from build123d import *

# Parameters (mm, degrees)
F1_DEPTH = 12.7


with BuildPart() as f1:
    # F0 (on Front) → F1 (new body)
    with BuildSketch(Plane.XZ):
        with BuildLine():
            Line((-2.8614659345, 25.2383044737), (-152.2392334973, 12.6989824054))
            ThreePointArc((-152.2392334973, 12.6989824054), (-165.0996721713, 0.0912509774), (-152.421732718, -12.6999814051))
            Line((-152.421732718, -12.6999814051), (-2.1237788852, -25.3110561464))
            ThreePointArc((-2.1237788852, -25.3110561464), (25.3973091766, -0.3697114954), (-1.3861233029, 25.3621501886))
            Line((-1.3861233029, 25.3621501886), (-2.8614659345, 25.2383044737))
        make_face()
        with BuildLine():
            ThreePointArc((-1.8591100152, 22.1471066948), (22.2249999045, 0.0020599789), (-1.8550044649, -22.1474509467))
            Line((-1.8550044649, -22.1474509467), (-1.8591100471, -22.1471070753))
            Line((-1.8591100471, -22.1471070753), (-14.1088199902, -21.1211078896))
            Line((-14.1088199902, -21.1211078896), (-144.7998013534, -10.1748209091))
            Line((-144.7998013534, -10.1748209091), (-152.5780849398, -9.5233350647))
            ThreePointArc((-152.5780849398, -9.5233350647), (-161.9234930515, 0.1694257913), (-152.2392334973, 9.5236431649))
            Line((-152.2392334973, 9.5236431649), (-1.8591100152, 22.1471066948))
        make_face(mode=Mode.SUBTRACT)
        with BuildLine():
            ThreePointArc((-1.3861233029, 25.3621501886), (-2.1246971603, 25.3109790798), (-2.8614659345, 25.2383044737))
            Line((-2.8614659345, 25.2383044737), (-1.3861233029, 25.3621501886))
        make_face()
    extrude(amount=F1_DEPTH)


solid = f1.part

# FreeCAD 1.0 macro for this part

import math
import FreeCAD as App
import Part
import Sketcher

V = App.Vector
Q = App.Units.Quantity

doc = App.newDocument("Part")
body = doc.addObject("PartDesign::Body", "Body")

# Sketch on XZ plane
sketch1 = doc.addObject("Sketcher::SketchObject", "Sketch")
body.addObject(sketch1)
sketch1.AttachmentSupport = (doc.XZ_Plane, [""])
sketch1.MapMode = "FlatFace"
sketch1.addGeometry(Part.LineSegment(V(-2.8615, 25.2383, 0), V(-152.2392, 12.699, 0)), False)
sketch1.addGeometry(Part.ArcOfCircle(Part.Circle(V(-152.4, 0, 0), V(0, 0, 1), 12.7), math.radians(89), math.radians(270)), False)
sketch1.addGeometry(Part.LineSegment(V(-152.4217, -12.7, 0), V(-2.1238, -25.3111, 0)), False)
sketch1.addGeometry(Part.ArcOfCircle(Part.Circle(V(0, 0, 0), V(0, 0, 1), 25.4), math.radians(-95), math.radians(93)), False)
sketch1.addGeometry(Part.ArcOfCircle(Part.Circle(V(0, 0, 0), V(0, 0, 1), 25.4), math.radians(93.13), math.radians(96.47)), False)
sketch1.addGeometry(Part.LineSegment(V(-152.2392, 9.5236, 0), V(-1.8591, 22.1471, 0)), False)
sketch1.addGeometry(Part.ArcOfCircle(Part.Circle(V(0, 0, 0), V(0, 0, 1), 22.225), math.radians(-95), math.radians(95)), False)
sketch1.addGeometry(Part.LineSegment(V(-1.855, -22.1475, 0), V(-1.8591, -22.1471, 0)), False)
sketch1.addGeometry(Part.LineSegment(V(-1.8591, -22.1471, 0), V(-14.1088, -21.1211, 0)), False)
sketch1.addGeometry(Part.LineSegment(V(-14.1088, -21.1211, 0), V(-144.7998, -10.1748, 0)), False)
sketch1.addGeometry(Part.LineSegment(V(-144.7998, -10.1748, 0), V(-152.5781, -9.5233, 0)), False)
sketch1.addGeometry(Part.ArcOfCircle(Part.Circle(V(-152.4, 0, 0), V(0, 0, 1), 9.525), math.radians(89), math.radians(269)), False)
sketch1.addConstraint(Sketcher.Constraint("Coincident", 0, 2, 1, 1))
sketch1.addConstraint(Sketcher.Constraint("Coincident", 1, 2, 2, 1))
sketch1.addConstraint(Sketcher.Constraint("Tangent", 2, 2, 3, 1))
sketch1.addConstraint(Sketcher.Constraint("Tangent", 3, 2, 4, 1))
sketch1.addConstraint(Sketcher.Constraint("Coincident", 4, 2, 0, 1))
sketch1.addConstraint(Sketcher.Constraint("Tangent", 5, 2, 6, 2))
sketch1.addConstraint(Sketcher.Constraint("Tangent", 6, 1, 7, 1))
sketch1.addConstraint(Sketcher.Constraint("Coincident", 7, 2, 8, 1))
sketch1.addConstraint(Sketcher.Constraint("Coincident", 8, 2, 9, 1))
sketch1.addConstraint(Sketcher.Constraint("Coincident", 9, 2, 10, 1))
sketch1.addConstraint(Sketcher.Constraint("Coincident", 10, 2, 11, 2))
sketch1.addConstraint(Sketcher.Constraint("Coincident", 11, 1, 5, 1))
sketch1.addConstraint(Sketcher.Constraint("Coincident", 3, 3, -1, 1))
sketch1.addConstraint(Sketcher.Constraint("Coincident", 6, 3, -1, 1))
sketch1.addConstraint(Sketcher.Constraint("Coincident", 11, 3, 1, 3))
sketch1.addConstraint(Sketcher.Constraint("Equal", 3, 4))
sketch1.addConstraint(Sketcher.Constraint("PointOnObject", 1, 3, -1))
sketch1.addConstraint(Sketcher.Constraint("Parallel", 0, 5))
sketch1.addConstraint(Sketcher.Constraint("Parallel", 8, 9))
sketch1.addConstraint(Sketcher.Constraint("Parallel", 9, 10))
sketch1.addConstraint(Sketcher.Constraint("Vertical", 5, 2, 7, 2))
sketch1.addConstraint(Sketcher.Constraint("Vertical", 0, 2, 11, 1))
sketch1.addConstraint(Sketcher.Constraint("Radius", 3, Q("1 in")))
sketch1.addConstraint(Sketcher.Constraint("Radius", 1, Q("0.5 in")))
sketch1.addConstraint(Sketcher.Constraint("DistanceX", 1, 3, -1, 1, Q("6 in")))
sketch1.addConstraint(Sketcher.Constraint("Radius", 6, Q("0.875 in")))
sketch1.addConstraint(Sketcher.Constraint("Radius", 11, Q("0.375 in")))
sketch1.addConstraint(Sketcher.Constraint("Distance", 5, Q("5.9413001 in")))
sketch1.addConstraint(Sketcher.Constraint("DistanceX", 9, 2, -1, 1, 144.799801))
sketch1.addConstraint(Sketcher.Constraint("DistanceX", 1, 2, 0, 2, 0.182499))
sketch1.addConstraint(Sketcher.Constraint("DistanceY", 7, 2, 8, 2, 1.025999))
sketch1.addConstraint(Sketcher.Constraint("Distance", 7, 0.00412))
sketch1.addConstraint(Sketcher.Constraint("Distance", 10, 7.805519))
sketch1.addConstraint(Sketcher.Constraint("DistanceY", -1, 1, 3, 2, 25.36215))
pad1 = doc.addObject("PartDesign::Pad", "Pad")
body.addObject(pad1)
pad1.Profile = sketch1
pad1.Length = Q("0.5 in")

doc.recompute()
